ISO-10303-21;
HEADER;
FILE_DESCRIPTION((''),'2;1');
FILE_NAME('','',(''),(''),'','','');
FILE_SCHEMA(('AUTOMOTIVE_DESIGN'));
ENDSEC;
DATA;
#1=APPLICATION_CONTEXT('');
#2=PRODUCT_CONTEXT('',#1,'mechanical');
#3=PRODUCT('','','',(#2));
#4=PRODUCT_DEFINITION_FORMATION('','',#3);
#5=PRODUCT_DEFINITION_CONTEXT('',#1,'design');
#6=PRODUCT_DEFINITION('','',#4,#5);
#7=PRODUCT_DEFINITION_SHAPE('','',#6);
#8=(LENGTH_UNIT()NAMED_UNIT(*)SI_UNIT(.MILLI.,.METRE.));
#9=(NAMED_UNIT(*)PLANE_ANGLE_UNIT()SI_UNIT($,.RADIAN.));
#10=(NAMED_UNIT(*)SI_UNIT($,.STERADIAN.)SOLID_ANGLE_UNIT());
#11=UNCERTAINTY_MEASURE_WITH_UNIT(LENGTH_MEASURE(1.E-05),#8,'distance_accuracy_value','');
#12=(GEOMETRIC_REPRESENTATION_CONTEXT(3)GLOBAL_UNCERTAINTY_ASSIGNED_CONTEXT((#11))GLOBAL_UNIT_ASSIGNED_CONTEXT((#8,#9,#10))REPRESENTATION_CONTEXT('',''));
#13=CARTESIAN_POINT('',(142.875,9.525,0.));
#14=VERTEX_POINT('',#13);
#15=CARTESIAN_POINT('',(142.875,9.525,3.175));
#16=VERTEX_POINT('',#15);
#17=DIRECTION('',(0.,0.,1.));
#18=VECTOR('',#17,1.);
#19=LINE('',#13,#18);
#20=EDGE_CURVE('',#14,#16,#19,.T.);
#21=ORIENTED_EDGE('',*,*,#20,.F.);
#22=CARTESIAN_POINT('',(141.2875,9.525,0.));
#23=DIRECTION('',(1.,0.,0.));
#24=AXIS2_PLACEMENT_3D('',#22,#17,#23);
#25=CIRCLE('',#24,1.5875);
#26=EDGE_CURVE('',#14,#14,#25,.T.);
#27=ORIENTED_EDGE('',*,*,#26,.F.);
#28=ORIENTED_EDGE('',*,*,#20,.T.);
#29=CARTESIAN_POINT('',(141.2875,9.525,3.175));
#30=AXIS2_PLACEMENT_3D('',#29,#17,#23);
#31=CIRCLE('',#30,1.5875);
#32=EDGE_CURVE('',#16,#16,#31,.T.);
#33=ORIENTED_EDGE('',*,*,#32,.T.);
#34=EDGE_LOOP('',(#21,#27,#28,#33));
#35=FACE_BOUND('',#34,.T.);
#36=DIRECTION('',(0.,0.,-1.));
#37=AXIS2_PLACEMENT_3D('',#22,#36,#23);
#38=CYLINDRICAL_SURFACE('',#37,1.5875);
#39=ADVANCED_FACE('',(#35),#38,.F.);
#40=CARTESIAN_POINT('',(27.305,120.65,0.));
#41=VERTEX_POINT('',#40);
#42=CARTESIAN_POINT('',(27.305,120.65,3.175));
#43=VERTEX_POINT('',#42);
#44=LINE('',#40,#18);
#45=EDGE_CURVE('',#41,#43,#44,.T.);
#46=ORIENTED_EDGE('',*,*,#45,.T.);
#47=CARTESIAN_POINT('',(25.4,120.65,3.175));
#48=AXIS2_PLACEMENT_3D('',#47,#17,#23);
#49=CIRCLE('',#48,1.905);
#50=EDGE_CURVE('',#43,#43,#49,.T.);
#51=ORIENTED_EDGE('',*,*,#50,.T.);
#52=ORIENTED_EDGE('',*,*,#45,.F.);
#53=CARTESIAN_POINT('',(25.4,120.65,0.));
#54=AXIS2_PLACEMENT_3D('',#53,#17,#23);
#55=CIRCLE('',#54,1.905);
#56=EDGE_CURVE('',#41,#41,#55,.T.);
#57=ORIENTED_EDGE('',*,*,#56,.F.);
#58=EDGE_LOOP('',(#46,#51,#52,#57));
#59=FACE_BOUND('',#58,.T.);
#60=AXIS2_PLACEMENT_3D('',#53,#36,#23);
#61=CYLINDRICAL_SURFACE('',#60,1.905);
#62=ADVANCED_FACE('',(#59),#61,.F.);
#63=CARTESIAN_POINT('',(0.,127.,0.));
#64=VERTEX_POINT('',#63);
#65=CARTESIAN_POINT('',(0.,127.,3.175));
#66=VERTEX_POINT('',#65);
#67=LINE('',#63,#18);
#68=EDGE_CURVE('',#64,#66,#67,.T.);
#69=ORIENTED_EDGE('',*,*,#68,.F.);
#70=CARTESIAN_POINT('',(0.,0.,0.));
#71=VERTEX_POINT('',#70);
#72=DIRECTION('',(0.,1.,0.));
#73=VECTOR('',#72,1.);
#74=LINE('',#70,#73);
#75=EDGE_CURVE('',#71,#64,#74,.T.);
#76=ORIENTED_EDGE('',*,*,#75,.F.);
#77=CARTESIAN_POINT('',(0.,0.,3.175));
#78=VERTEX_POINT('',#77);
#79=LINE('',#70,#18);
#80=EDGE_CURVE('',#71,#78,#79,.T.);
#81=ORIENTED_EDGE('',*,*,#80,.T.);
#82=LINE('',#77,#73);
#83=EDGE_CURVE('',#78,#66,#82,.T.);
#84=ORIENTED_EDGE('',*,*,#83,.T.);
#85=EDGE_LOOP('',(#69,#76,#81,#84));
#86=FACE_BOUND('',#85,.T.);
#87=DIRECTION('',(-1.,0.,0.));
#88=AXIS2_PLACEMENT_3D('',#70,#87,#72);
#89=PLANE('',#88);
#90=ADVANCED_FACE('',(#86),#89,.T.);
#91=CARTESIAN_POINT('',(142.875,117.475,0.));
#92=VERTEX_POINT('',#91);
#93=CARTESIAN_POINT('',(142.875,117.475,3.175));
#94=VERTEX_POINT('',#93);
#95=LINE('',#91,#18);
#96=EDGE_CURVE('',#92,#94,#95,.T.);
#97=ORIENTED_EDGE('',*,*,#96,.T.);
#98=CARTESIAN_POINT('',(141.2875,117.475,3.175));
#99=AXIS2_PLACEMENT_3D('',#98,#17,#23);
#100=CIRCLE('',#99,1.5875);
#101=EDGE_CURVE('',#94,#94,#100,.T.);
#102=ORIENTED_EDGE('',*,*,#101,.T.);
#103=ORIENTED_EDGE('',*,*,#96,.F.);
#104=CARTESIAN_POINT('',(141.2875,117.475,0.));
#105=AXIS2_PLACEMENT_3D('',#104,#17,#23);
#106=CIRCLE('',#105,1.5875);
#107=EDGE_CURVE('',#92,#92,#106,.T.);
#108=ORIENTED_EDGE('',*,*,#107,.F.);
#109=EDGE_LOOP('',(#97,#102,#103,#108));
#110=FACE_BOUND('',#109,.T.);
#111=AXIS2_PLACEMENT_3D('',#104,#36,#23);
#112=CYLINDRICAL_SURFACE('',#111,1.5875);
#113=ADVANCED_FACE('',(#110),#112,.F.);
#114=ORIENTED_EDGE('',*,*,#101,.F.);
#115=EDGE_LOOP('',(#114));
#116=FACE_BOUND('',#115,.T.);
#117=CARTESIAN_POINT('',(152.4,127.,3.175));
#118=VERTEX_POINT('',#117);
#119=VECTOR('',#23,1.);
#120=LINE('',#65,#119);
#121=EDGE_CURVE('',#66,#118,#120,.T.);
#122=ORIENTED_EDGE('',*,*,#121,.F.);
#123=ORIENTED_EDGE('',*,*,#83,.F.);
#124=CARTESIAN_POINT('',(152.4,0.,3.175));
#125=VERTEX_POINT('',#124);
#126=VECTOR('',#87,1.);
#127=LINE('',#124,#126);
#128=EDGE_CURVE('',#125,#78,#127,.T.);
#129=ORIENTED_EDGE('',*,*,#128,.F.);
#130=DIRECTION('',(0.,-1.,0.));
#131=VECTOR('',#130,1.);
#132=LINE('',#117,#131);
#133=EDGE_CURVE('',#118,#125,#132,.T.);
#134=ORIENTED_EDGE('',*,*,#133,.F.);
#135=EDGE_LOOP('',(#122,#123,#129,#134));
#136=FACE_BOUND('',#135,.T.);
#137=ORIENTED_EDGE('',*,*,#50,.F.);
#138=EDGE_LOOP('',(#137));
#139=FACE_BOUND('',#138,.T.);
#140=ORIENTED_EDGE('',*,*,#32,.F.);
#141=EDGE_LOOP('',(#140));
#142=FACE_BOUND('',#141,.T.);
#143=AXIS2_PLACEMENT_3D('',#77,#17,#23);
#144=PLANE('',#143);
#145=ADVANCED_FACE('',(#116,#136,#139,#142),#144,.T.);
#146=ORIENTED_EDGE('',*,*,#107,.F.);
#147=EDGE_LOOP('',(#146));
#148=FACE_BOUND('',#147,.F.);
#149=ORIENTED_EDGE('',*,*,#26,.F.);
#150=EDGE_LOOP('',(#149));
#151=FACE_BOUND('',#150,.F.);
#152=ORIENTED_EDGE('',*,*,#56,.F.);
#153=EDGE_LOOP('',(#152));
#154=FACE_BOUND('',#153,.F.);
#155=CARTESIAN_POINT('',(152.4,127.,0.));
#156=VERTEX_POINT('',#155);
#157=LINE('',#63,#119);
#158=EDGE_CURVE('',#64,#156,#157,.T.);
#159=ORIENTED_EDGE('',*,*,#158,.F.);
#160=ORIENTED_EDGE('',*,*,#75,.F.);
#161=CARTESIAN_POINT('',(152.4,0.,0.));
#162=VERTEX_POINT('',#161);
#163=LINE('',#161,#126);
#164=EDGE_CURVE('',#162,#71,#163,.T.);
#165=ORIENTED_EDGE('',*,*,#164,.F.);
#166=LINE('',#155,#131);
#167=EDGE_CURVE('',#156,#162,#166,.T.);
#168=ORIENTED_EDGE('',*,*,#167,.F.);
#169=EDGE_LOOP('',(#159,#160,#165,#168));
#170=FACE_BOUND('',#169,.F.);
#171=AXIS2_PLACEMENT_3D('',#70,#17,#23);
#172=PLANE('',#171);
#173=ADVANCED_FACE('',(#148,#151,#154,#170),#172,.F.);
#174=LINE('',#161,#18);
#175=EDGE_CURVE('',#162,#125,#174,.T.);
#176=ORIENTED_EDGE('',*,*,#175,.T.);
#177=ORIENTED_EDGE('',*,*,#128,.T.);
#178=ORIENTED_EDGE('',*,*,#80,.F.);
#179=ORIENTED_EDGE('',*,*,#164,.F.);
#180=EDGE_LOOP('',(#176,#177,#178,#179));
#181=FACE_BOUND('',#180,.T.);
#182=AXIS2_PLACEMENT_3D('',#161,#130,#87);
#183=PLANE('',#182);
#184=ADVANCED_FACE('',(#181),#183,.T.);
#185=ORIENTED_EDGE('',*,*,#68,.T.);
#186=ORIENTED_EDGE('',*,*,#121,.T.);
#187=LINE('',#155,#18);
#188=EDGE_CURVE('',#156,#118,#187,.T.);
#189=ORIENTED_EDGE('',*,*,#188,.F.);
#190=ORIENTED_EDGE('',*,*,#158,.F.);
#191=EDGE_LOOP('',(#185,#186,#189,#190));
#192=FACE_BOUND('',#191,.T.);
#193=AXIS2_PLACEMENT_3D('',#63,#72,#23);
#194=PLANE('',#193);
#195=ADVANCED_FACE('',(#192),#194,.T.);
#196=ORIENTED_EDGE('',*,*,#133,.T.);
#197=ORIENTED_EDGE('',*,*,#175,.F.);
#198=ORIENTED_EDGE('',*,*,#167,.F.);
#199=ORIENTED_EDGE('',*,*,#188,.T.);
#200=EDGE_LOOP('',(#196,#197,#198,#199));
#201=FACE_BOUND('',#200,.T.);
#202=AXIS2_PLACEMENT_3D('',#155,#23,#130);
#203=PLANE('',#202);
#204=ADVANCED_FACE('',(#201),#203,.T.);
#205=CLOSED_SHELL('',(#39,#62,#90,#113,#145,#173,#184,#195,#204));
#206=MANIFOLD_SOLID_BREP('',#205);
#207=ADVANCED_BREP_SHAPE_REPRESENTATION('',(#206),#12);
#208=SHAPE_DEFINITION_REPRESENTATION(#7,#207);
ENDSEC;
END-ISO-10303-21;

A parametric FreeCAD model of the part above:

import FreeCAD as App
import Part
import Sketcher

V = App.Vector
Q = App.Units.Quantity

doc = App.newDocument("Part")
body = doc.addObject("PartDesign::Body", "Body")

sketch1 = body.newObject("Sketcher::SketchObject", "Sketch")
sketch1.AttachmentSupport = (doc.getObject("XY_Plane"), [""])
sketch1.MapMode = "FlatFace"
sketch1.addGeometry([
    Part.LineSegment(V(0, 127, 0), V(0, 0, 0)),
    Part.LineSegment(V(0, 0, 0), V(152.4, 0, 0)),
    Part.LineSegment(V(152.4, 0, 0), V(152.4, 127, 0)),
    Part.LineSegment(V(152.4, 127, 0), V(0, 127, 0)),
    Part.Circle(V(141.2875, 9.525, 0), V(0, 0, 1), 1.5875),
    Part.Circle(V(25.4, 120.65, 0), V(0, 0, 1), 1.905),
    Part.Circle(V(141.2875, 117.475, 0), V(0, 0, 1), 1.5875),
], False)
sketch1.addConstraint([
    Sketcher.Constraint("Coincident", 0, 2, 1, 1),
    Sketcher.Constraint("Coincident", 1, 2, 2, 1),
    Sketcher.Constraint("Coincident", 2, 2, 3, 1),
    Sketcher.Constraint("Coincident", 3, 2, 0, 1),
    Sketcher.Constraint("Vertical", 0),
    Sketcher.Constraint("Horizontal", 1),
    Sketcher.Constraint("Vertical", 2),
    Sketcher.Constraint("Horizontal", 3),
    Sketcher.Constraint("Coincident", 0, 2, -1, 1),
    Sketcher.Constraint("Equal", 4, 6),
    Sketcher.Constraint("Vertical", 4, 3, 6, 3),
    Sketcher.Constraint("Diameter", 5, Q("0.15 in")),
    Sketcher.Constraint("DistanceX", 1, 1, 1, 2, Q("6 in")),
    Sketcher.Constraint("DistanceY", 0, 2, 0, 1, Q("5 in")),
    Sketcher.Constraint("DistanceX", -1, 1, 5, 3, Q("1 in")),
    Sketcher.Constraint("DistanceY", 5, 3, 2, 2, Q("0.25 in")),
    Sketcher.Constraint("Diameter", 4, Q("0.125 in")),
    Sketcher.Constraint("DistanceY", 4, 3, 6, 3, Q("4.25 in")),
    Sketcher.Constraint("DistanceX", -1, 1, 4, 3, Q("5.5625 in")),
    Sketcher.Constraint("DistanceY", -1, 1, 4, 3, Q("0.375 in")),
])
pad1 = body.newObject("PartDesign::Pad", "Pad")
pad1.Profile = sketch1
pad1.Length = Q("0.125 in")

doc.recompute()
